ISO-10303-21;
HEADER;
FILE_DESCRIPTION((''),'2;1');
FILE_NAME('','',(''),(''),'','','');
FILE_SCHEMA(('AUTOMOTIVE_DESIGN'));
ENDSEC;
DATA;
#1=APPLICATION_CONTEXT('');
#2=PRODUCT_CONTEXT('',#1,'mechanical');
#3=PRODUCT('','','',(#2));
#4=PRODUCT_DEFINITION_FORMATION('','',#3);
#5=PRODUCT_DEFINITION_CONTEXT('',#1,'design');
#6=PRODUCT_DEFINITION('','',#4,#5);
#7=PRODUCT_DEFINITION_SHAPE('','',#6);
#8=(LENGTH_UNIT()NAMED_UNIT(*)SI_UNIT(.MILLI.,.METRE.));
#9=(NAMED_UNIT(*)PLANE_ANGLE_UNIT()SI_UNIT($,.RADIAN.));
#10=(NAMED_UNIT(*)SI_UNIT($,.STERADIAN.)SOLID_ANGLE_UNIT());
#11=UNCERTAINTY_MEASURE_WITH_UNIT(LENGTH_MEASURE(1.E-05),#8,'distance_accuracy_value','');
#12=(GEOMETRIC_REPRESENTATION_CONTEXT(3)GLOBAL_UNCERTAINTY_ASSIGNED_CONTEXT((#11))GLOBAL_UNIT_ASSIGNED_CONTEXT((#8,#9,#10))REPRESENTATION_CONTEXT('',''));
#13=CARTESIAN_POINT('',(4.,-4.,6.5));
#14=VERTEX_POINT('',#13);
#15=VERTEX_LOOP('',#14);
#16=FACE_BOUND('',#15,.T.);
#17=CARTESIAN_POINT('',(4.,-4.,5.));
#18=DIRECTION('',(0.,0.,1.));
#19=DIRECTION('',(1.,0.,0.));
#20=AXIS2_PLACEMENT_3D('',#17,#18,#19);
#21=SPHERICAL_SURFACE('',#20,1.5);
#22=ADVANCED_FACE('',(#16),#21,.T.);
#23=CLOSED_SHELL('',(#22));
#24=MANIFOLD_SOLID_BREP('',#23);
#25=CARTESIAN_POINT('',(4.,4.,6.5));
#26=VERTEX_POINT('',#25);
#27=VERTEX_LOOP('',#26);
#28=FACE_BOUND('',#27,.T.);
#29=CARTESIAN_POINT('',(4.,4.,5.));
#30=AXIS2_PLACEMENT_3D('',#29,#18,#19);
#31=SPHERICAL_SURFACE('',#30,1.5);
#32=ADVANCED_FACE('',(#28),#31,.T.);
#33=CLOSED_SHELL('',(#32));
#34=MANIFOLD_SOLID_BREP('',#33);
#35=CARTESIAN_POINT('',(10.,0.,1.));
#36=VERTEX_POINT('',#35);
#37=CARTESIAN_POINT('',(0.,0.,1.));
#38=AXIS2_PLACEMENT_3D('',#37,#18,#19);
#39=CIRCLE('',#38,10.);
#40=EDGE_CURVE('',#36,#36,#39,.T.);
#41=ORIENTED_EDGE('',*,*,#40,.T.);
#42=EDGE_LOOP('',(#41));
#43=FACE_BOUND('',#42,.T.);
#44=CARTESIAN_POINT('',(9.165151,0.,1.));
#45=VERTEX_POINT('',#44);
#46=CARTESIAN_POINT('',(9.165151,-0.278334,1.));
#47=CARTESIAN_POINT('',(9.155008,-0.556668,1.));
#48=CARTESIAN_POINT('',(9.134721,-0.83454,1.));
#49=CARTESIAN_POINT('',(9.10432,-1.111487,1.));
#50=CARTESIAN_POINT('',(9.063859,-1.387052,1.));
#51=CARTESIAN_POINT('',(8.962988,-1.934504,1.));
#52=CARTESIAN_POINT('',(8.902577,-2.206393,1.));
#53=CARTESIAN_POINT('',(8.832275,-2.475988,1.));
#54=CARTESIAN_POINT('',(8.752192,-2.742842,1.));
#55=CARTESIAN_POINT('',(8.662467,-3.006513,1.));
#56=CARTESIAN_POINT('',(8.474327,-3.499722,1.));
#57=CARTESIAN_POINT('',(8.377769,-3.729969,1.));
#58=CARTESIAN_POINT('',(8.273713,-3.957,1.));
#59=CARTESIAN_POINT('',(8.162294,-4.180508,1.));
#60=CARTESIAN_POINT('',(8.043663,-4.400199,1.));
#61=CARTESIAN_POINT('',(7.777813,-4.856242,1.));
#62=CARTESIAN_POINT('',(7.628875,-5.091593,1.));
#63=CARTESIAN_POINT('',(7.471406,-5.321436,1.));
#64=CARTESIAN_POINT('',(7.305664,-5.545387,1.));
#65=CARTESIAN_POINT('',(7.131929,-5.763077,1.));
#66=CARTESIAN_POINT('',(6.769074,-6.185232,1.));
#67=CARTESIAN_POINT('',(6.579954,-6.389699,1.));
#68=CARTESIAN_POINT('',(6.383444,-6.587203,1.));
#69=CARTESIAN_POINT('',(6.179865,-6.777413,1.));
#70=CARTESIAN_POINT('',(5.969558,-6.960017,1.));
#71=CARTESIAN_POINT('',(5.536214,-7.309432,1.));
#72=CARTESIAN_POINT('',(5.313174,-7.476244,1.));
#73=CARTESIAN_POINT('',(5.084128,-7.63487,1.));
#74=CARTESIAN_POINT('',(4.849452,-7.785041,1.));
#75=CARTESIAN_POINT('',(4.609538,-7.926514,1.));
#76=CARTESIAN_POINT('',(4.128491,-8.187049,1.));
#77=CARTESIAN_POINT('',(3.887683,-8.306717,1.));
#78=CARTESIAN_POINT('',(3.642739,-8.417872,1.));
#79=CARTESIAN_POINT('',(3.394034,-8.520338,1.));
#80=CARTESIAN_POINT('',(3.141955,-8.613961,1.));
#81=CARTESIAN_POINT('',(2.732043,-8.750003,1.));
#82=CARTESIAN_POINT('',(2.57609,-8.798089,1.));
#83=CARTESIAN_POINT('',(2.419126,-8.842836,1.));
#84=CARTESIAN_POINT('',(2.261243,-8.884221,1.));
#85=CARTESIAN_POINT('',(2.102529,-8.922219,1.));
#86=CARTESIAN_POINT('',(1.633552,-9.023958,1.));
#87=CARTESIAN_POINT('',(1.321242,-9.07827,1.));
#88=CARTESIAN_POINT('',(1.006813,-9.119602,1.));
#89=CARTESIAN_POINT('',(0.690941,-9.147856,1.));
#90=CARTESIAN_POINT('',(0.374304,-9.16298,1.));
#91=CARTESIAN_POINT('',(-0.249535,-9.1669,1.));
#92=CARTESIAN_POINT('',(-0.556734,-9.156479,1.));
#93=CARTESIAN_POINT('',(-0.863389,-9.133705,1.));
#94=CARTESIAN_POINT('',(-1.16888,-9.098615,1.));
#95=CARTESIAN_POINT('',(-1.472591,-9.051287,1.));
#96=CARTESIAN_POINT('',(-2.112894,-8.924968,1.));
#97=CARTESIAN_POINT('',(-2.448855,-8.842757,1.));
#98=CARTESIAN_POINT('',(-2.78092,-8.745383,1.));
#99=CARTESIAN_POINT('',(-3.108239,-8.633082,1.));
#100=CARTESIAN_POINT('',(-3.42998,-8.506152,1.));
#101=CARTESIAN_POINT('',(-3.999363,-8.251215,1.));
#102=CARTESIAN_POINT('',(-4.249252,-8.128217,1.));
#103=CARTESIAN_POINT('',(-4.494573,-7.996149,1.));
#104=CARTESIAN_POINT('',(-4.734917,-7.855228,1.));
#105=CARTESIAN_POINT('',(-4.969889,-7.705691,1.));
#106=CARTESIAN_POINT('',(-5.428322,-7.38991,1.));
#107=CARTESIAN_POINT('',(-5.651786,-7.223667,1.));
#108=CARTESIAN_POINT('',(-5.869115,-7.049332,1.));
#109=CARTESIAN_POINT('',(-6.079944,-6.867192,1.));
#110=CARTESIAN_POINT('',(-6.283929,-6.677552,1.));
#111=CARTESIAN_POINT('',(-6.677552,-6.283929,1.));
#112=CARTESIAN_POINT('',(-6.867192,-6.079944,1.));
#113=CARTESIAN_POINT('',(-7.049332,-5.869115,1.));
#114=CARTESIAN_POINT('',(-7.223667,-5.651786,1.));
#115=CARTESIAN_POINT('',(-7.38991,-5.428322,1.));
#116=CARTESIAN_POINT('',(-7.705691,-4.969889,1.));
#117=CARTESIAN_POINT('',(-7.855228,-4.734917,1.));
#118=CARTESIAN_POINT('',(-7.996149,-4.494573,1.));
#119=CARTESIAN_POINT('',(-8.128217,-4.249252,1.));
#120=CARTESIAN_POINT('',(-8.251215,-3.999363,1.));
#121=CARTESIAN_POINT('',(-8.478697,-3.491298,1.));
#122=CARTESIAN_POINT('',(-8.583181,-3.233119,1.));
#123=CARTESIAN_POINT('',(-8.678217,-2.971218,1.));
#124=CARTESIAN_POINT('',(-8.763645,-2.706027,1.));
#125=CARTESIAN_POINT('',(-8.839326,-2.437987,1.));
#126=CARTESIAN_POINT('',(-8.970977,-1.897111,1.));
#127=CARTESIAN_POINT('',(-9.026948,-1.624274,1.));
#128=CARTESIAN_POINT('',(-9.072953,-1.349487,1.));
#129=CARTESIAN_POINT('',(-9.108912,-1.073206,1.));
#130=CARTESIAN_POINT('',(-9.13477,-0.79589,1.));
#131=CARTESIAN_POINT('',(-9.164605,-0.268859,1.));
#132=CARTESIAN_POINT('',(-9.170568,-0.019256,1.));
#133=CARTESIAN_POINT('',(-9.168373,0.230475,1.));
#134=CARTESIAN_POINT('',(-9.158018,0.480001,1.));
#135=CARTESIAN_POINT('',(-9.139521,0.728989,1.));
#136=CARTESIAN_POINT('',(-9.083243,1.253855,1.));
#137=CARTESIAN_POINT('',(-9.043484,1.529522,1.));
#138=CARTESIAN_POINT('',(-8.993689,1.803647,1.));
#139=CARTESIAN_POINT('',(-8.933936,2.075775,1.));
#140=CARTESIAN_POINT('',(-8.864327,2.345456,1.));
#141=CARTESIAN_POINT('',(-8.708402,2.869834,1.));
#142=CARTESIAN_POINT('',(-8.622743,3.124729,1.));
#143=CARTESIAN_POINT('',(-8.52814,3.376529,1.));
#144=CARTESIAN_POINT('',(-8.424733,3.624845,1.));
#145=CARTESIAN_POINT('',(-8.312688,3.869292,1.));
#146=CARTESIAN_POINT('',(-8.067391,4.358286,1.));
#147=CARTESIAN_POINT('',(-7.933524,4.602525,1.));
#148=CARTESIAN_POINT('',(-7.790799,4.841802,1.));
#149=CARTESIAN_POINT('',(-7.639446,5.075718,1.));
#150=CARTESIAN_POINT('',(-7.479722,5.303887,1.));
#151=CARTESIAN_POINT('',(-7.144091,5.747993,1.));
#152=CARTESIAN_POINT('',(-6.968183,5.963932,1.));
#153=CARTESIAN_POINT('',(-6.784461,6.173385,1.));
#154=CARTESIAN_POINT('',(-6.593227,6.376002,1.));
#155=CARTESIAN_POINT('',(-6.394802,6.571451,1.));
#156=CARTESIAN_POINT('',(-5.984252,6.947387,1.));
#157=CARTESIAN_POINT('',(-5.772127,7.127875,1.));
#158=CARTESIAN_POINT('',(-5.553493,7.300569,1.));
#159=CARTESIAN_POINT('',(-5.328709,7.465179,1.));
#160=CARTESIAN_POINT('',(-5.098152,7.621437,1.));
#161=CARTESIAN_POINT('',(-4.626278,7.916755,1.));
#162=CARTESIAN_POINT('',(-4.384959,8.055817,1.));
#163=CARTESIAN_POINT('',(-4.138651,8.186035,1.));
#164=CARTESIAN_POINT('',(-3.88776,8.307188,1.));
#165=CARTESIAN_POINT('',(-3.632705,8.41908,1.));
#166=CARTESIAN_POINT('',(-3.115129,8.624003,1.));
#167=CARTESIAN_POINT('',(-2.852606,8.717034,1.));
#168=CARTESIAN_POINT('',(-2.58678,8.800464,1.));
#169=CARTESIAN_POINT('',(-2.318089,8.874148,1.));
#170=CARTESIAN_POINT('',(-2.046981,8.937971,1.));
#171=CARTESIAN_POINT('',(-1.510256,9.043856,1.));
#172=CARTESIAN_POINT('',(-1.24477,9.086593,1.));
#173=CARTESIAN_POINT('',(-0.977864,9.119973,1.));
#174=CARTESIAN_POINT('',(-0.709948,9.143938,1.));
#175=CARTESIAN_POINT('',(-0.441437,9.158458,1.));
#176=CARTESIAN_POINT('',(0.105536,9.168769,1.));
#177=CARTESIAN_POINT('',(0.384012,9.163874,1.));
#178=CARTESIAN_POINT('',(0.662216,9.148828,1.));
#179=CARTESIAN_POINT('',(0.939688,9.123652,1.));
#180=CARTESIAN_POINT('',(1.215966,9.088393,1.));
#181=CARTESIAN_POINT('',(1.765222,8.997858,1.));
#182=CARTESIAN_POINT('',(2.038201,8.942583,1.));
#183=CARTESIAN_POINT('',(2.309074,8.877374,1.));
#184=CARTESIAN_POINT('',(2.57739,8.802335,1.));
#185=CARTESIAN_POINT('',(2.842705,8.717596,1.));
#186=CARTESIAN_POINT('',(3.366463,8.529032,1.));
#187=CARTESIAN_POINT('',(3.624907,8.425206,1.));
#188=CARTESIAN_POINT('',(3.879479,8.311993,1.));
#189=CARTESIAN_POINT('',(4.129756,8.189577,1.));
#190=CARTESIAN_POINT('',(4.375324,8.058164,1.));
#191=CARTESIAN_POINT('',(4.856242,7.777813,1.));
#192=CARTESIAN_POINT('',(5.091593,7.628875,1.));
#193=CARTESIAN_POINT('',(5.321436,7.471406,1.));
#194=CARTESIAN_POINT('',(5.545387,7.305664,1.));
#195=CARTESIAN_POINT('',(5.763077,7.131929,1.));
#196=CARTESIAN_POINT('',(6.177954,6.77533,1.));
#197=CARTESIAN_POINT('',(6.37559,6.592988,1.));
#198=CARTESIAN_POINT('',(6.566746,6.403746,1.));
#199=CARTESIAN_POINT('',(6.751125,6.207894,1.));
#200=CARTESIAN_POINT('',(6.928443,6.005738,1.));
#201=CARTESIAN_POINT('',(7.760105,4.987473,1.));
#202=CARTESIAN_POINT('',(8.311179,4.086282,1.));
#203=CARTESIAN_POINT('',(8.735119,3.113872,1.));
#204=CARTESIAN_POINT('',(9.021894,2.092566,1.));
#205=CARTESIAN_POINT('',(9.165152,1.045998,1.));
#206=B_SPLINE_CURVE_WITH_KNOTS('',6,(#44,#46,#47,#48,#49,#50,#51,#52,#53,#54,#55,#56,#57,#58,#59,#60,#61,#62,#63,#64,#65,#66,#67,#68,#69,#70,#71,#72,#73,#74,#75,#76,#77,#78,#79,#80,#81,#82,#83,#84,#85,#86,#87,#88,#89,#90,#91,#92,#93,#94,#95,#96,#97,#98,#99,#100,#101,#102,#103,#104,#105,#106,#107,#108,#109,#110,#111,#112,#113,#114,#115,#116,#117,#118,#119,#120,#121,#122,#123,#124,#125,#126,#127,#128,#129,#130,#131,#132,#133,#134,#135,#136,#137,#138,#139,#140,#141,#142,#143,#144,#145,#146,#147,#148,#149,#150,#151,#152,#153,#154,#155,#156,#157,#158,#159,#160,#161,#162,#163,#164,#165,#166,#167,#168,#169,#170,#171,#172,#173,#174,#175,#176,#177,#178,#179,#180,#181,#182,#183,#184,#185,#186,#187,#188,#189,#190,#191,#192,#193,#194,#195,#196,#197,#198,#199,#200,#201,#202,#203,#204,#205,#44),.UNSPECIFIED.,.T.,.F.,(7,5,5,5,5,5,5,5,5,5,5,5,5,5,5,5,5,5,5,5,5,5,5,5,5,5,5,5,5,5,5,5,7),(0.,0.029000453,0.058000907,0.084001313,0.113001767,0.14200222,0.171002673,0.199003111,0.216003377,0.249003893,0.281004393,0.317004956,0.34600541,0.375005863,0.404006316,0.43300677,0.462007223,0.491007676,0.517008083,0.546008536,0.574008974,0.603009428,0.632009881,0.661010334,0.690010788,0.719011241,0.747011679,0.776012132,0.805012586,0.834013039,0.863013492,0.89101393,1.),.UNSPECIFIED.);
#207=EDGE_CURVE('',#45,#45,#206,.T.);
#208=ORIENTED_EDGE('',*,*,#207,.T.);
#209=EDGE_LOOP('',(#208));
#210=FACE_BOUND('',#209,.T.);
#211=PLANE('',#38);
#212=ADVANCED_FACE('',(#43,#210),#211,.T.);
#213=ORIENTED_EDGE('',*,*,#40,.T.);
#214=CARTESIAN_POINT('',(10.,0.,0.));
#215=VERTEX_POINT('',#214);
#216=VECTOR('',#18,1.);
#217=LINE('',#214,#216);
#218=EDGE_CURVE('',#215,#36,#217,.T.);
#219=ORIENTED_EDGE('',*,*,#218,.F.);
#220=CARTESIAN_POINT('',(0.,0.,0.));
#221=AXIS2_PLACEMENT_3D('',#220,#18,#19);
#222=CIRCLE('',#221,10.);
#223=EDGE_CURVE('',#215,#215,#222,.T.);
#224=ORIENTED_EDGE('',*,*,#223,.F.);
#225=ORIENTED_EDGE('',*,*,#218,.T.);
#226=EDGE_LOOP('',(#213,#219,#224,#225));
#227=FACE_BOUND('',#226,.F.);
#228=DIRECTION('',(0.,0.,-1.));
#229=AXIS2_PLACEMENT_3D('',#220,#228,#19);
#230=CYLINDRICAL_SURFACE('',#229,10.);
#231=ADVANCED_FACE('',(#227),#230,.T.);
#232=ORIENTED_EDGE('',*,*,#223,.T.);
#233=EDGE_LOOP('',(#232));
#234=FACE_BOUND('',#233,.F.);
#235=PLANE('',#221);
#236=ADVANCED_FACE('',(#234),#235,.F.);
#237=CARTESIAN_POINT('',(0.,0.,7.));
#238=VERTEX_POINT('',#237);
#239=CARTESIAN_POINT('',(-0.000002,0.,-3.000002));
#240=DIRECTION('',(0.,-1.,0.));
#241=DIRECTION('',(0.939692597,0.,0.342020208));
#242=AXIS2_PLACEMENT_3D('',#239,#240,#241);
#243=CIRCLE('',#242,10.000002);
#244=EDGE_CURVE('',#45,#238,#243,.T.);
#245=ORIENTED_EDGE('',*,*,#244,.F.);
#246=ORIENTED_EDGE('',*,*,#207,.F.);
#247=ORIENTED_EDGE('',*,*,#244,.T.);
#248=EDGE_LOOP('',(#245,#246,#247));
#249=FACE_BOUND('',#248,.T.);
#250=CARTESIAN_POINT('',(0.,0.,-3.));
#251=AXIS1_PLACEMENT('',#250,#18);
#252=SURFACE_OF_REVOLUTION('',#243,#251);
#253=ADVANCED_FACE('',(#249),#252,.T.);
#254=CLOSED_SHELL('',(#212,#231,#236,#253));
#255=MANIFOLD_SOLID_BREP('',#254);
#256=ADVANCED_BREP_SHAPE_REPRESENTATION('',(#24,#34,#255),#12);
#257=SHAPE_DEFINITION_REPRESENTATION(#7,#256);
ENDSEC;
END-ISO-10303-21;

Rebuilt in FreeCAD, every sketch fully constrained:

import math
import FreeCAD as App
import Part
import Sketcher
Q = App.Units.Quantity

doc = App.newDocument("Part")
body = doc.addObject("PartDesign::Body", "Body")

# Sketch on XZ plane
sketch1 = body.newObject("Sketcher::SketchObject", "Sketch")
sketch1.AttachmentSupport = (doc.getObject("XZ_Plane"), [""])
sketch1.MapMode = "FlatFace"
sketch1.addGeometry(Part.ArcOfCircle(Part.Circle(App.Vector(0, -3, 0), App.Vector(0, 0, 1), 10), math.radians(20), math.radians(90)), False)
sketch1.addGeometry(Part.LineSegment(App.Vector(0, 7, 0), App.Vector(0, 0, 0)), False)
sketch1.addGeometry(Part.LineSegment(App.Vector(0, 0, 0), App.Vector(9, 0, 0)), False)
sketch1.addConstraint(Sketcher.Constraint("Coincident", 0, 2, 1, 1))
sketch1.addConstraint(Sketcher.Constraint("Coincident", 1, 2, 2, 1))
sketch1.addConstraint(Sketcher.Constraint("Coincident", 2, 2, 0, 1))
sketch1.addConstraint(Sketcher.Constraint("Vertical", 1))
sketch1.addConstraint(Sketcher.Constraint("Horizontal", 2))
sketch1.addConstraint(Sketcher.Constraint("PointOnObject", 0, 3, -2))
sketch1.addConstraint(Sketcher.Constraint("PointOnObject", 0, 2, -2))
sketch1.addConstraint(Sketcher.Constraint("Radius", 0, Q("10.000002 mm")))
sketch1.addConstraint(Sketcher.Constraint("DistanceY", 0, 3, -1, 1, Q("3.000002 mm")))
sketch1.addConstraint(Sketcher.Constraint("DistanceY", 1, 2, 1, 1, Q("6.579799 mm")))
revolution = body.newObject("PartDesign::Revolution", "Revolution")
revolution.Profile = sketch1
revolution.ReferenceAxis = (sketch1, ["V_Axis"])
revolution.Angle = 360
body2 = doc.addObject("PartDesign::Body", "Body001")

# Sketch on XY plane
sketch2 = body2.newObject("Sketcher::SketchObject", "Sketch001")
sketch2.AttachmentSupport = (doc.getObject("XY_Plane001"), [""])
sketch2.MapMode = "FlatFace"
sketch2.addGeometry(Part.Circle(App.Vector(0, 0, 0), App.Vector(0, 0, 1), 10), False)
sketch2.addConstraint(Sketcher.Constraint("Coincident", 0, 3, -1, 1))
sketch2.addConstraint(Sketcher.Constraint("Diameter", 0, Q("20 mm")))
pad1 = body2.newObject("PartDesign::Pad", "Pad")
pad1.Profile = sketch2
pad1.Length = 1
doc.recompute()

boolean = body2.newObject("PartDesign::Boolean", "Boolean")
boolean.Type = "Fuse"
boolean.addObjects([body])
body3 = doc.addObject("PartDesign::Body", "Body002")

# Sketch on XZ plane
sketch3 = body3.newObject("Sketcher::SketchObject", "Sketch002")
sketch3.AttachmentSupport = (doc.getObject("XZ_Plane002"), [""])
sketch3.MapMode = "FlatFace"
sketch3.AttachmentOffset = App.Placement(App.Vector(0, 0, 4), App.Rotation())
sketch3.addGeometry(Part.ArcOfCircle(Part.Circle(App.Vector(4, 5, 0), App.Vector(0, 0, 1), 1.5), math.radians(-90), math.radians(90)), False)
sketch3.addGeometry(Part.LineSegment(App.Vector(4, 6.5, 0), App.Vector(4, 3.5, 0)), False)
sketch3.addGeometry(Part.LineSegment(App.Vector(4, 3.5, 0), App.Vector(4, 6.5, 0)), True)  # axis
sketch3.addConstraint(Sketcher.Constraint("Coincident", 0, 1, 1, 2))
sketch3.addConstraint(Sketcher.Constraint("Coincident", 1, 1, 0, 2))
sketch3.addConstraint(Sketcher.Constraint("Vertical", 1))
sketch3.addConstraint(Sketcher.Constraint("Vertical", 2))
sketch3.addConstraint(Sketcher.Constraint("Coincident", 2, 1, 0, 1))
sketch3.addConstraint(Sketcher.Constraint("Equal", 1, 2))
sketch3.addConstraint(Sketcher.Constraint("Radius", 0, Q("1.5 mm")))
sketch3.addConstraint(Sketcher.Constraint("DistanceX", -1, 1, 0, 3, Q("4 mm")))
sketch3.addConstraint(Sketcher.Constraint("DistanceY", -1, 1, 0, 3, Q("5 mm")))
sketch3.addConstraint(Sketcher.Constraint("DistanceX", -1, 1, 0, 1, Q("4 mm")))
revolution2 = body3.newObject("PartDesign::Revolution", "Revolution001")
revolution2.Profile = sketch3
revolution2.ReferenceAxis = (sketch3, ["Axis0"])
revolution2.Angle = 360
body4 = doc.addObject("PartDesign::Body", "Body003")
body4.AllowCompound = True

# Sketch on XZ plane
sketch4 = body4.newObject("Sketcher::SketchObject", "Sketch003")
sketch4.AttachmentSupport = (doc.getObject("XZ_Plane003"), [""])
sketch4.MapMode = "FlatFace"
sketch4.AttachmentOffset = App.Placement(App.Vector(0, 0, -4), App.Rotation())
sketch4.addGeometry(Part.ArcOfCircle(Part.Circle(App.Vector(4, 5, 0), App.Vector(0, 0, 1), 1.5), math.radians(-90), math.radians(90)), False)
sketch4.addGeometry(Part.LineSegment(App.Vector(4, 6.5, 0), App.Vector(4, 3.5, 0)), False)
sketch4.addGeometry(Part.LineSegment(App.Vector(4, 3.5, 0), App.Vector(4, 6.5, 0)), True)  # axis
sketch4.addConstraint(Sketcher.Constraint("Coincident", 0, 1, 1, 2))
sketch4.addConstraint(Sketcher.Constraint("Coincident", 1, 1, 0, 2))
sketch4.addConstraint(Sketcher.Constraint("Vertical", 1))
sketch4.addConstraint(Sketcher.Constraint("Vertical", 2))
sketch4.addConstraint(Sketcher.Constraint("Coincident", 2, 1, 0, 1))
sketch4.addConstraint(Sketcher.Constraint("Equal", 1, 2))
sketch4.addConstraint(Sketcher.Constraint("Radius", 0, Q("1.5 mm")))
sketch4.addConstraint(Sketcher.Constraint("DistanceX", -1, 1, 0, 3, Q("4 mm")))
sketch4.addConstraint(Sketcher.Constraint("DistanceY", -1, 1, 0, 3, Q("5 mm")))
sketch4.addConstraint(Sketcher.Constraint("DistanceX", -1, 1, 0, 1, Q("4 mm")))
revolution3 = body4.newObject("PartDesign::Revolution", "Revolution002")
revolution3.Profile = sketch4
revolution3.ReferenceAxis = (sketch4, ["Axis0"])
revolution3.Angle = 360
doc.recompute()

boolean2 = body4.newObject("PartDesign::Boolean", "Boolean001")
boolean2.Type = "Fuse"
boolean2.addObjects([body3])

doc.recompute()
